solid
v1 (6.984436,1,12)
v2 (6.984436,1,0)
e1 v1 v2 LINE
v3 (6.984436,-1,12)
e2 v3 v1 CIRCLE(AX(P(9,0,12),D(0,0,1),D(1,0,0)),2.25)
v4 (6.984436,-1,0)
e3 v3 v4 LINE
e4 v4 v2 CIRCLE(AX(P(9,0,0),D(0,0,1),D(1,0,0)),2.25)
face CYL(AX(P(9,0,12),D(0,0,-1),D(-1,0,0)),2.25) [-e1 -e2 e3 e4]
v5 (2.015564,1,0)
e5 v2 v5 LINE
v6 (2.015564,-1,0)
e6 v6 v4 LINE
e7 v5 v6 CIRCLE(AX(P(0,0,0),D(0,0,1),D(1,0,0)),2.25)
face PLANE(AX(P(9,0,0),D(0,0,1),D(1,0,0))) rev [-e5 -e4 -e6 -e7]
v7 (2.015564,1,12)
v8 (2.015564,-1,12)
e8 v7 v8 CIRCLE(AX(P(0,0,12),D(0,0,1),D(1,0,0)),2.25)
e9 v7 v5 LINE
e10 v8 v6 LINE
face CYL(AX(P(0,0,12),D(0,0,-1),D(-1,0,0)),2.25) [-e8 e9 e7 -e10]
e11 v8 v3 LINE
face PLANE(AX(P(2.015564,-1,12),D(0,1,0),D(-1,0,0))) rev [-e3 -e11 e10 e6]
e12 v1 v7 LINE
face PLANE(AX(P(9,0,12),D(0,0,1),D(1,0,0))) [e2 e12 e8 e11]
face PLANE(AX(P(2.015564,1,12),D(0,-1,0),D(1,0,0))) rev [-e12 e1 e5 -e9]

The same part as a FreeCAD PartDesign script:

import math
import FreeCAD as App
import Part
import Sketcher

doc = App.newDocument("Part")
body = doc.addObject("PartDesign::Body", "Body")

# Sketch on XY plane
sketch1 = body.newObject("Sketcher::SketchObject", "Sketch")
sketch1.AttachmentSupport = (doc.getObject("XY_Plane"), [""])
sketch1.MapMode = "FlatFace"
sketch1.addGeometry([
    Part.LineSegment(App.Vector(7, 1, 0), App.Vector(2, 1, 0)),
    Part.ArcOfCircle(Part.Circle(App.Vector(0, 0, 0), App.Vector(0, 0, 1), 2.2), math.radians(26), math.radians(334)),
    Part.LineSegment(App.Vector(2, -1, 0), App.Vector(7, -1, 0)),
    Part.ArcOfCircle(Part.Circle(App.Vector(9, 0, 0), App.Vector(0, 0, 1), 2.2), math.radians(-154), math.radians(154)),
], False)
sketch1.addConstraint([
    Sketcher.Constraint("Coincident", 0, 2, 1, 1),
    Sketcher.Constraint("Coincident", 1, 2, 2, 1),
    Sketcher.Constraint("Coincident", 2, 2, 3, 1),
    Sketcher.Constraint("Coincident", 3, 2, 0, 1),
    Sketcher.Constraint("Horizontal", 0),
    Sketcher.Constraint("Horizontal", 2),
    Sketcher.Constraint("Coincident", 1, 3, -1, 1),
    Sketcher.Constraint("Equal", 1, 3),
    Sketcher.Constraint("Symmetric", 2, 2, 3, 2, -1),
    Sketcher.Constraint("Radius", 1, 2.25),
    Sketcher.Constraint("DistanceX", -1, 1, 3, 3, 9.0),
    Sketcher.Constraint("DistanceY", -1, 1, 0, 2, 1.0),
])
pad1 = body.newObject("PartDesign::Pad", "Pad")
pad1.Profile = sketch1
pad1.Length = 12

doc.recompute()
